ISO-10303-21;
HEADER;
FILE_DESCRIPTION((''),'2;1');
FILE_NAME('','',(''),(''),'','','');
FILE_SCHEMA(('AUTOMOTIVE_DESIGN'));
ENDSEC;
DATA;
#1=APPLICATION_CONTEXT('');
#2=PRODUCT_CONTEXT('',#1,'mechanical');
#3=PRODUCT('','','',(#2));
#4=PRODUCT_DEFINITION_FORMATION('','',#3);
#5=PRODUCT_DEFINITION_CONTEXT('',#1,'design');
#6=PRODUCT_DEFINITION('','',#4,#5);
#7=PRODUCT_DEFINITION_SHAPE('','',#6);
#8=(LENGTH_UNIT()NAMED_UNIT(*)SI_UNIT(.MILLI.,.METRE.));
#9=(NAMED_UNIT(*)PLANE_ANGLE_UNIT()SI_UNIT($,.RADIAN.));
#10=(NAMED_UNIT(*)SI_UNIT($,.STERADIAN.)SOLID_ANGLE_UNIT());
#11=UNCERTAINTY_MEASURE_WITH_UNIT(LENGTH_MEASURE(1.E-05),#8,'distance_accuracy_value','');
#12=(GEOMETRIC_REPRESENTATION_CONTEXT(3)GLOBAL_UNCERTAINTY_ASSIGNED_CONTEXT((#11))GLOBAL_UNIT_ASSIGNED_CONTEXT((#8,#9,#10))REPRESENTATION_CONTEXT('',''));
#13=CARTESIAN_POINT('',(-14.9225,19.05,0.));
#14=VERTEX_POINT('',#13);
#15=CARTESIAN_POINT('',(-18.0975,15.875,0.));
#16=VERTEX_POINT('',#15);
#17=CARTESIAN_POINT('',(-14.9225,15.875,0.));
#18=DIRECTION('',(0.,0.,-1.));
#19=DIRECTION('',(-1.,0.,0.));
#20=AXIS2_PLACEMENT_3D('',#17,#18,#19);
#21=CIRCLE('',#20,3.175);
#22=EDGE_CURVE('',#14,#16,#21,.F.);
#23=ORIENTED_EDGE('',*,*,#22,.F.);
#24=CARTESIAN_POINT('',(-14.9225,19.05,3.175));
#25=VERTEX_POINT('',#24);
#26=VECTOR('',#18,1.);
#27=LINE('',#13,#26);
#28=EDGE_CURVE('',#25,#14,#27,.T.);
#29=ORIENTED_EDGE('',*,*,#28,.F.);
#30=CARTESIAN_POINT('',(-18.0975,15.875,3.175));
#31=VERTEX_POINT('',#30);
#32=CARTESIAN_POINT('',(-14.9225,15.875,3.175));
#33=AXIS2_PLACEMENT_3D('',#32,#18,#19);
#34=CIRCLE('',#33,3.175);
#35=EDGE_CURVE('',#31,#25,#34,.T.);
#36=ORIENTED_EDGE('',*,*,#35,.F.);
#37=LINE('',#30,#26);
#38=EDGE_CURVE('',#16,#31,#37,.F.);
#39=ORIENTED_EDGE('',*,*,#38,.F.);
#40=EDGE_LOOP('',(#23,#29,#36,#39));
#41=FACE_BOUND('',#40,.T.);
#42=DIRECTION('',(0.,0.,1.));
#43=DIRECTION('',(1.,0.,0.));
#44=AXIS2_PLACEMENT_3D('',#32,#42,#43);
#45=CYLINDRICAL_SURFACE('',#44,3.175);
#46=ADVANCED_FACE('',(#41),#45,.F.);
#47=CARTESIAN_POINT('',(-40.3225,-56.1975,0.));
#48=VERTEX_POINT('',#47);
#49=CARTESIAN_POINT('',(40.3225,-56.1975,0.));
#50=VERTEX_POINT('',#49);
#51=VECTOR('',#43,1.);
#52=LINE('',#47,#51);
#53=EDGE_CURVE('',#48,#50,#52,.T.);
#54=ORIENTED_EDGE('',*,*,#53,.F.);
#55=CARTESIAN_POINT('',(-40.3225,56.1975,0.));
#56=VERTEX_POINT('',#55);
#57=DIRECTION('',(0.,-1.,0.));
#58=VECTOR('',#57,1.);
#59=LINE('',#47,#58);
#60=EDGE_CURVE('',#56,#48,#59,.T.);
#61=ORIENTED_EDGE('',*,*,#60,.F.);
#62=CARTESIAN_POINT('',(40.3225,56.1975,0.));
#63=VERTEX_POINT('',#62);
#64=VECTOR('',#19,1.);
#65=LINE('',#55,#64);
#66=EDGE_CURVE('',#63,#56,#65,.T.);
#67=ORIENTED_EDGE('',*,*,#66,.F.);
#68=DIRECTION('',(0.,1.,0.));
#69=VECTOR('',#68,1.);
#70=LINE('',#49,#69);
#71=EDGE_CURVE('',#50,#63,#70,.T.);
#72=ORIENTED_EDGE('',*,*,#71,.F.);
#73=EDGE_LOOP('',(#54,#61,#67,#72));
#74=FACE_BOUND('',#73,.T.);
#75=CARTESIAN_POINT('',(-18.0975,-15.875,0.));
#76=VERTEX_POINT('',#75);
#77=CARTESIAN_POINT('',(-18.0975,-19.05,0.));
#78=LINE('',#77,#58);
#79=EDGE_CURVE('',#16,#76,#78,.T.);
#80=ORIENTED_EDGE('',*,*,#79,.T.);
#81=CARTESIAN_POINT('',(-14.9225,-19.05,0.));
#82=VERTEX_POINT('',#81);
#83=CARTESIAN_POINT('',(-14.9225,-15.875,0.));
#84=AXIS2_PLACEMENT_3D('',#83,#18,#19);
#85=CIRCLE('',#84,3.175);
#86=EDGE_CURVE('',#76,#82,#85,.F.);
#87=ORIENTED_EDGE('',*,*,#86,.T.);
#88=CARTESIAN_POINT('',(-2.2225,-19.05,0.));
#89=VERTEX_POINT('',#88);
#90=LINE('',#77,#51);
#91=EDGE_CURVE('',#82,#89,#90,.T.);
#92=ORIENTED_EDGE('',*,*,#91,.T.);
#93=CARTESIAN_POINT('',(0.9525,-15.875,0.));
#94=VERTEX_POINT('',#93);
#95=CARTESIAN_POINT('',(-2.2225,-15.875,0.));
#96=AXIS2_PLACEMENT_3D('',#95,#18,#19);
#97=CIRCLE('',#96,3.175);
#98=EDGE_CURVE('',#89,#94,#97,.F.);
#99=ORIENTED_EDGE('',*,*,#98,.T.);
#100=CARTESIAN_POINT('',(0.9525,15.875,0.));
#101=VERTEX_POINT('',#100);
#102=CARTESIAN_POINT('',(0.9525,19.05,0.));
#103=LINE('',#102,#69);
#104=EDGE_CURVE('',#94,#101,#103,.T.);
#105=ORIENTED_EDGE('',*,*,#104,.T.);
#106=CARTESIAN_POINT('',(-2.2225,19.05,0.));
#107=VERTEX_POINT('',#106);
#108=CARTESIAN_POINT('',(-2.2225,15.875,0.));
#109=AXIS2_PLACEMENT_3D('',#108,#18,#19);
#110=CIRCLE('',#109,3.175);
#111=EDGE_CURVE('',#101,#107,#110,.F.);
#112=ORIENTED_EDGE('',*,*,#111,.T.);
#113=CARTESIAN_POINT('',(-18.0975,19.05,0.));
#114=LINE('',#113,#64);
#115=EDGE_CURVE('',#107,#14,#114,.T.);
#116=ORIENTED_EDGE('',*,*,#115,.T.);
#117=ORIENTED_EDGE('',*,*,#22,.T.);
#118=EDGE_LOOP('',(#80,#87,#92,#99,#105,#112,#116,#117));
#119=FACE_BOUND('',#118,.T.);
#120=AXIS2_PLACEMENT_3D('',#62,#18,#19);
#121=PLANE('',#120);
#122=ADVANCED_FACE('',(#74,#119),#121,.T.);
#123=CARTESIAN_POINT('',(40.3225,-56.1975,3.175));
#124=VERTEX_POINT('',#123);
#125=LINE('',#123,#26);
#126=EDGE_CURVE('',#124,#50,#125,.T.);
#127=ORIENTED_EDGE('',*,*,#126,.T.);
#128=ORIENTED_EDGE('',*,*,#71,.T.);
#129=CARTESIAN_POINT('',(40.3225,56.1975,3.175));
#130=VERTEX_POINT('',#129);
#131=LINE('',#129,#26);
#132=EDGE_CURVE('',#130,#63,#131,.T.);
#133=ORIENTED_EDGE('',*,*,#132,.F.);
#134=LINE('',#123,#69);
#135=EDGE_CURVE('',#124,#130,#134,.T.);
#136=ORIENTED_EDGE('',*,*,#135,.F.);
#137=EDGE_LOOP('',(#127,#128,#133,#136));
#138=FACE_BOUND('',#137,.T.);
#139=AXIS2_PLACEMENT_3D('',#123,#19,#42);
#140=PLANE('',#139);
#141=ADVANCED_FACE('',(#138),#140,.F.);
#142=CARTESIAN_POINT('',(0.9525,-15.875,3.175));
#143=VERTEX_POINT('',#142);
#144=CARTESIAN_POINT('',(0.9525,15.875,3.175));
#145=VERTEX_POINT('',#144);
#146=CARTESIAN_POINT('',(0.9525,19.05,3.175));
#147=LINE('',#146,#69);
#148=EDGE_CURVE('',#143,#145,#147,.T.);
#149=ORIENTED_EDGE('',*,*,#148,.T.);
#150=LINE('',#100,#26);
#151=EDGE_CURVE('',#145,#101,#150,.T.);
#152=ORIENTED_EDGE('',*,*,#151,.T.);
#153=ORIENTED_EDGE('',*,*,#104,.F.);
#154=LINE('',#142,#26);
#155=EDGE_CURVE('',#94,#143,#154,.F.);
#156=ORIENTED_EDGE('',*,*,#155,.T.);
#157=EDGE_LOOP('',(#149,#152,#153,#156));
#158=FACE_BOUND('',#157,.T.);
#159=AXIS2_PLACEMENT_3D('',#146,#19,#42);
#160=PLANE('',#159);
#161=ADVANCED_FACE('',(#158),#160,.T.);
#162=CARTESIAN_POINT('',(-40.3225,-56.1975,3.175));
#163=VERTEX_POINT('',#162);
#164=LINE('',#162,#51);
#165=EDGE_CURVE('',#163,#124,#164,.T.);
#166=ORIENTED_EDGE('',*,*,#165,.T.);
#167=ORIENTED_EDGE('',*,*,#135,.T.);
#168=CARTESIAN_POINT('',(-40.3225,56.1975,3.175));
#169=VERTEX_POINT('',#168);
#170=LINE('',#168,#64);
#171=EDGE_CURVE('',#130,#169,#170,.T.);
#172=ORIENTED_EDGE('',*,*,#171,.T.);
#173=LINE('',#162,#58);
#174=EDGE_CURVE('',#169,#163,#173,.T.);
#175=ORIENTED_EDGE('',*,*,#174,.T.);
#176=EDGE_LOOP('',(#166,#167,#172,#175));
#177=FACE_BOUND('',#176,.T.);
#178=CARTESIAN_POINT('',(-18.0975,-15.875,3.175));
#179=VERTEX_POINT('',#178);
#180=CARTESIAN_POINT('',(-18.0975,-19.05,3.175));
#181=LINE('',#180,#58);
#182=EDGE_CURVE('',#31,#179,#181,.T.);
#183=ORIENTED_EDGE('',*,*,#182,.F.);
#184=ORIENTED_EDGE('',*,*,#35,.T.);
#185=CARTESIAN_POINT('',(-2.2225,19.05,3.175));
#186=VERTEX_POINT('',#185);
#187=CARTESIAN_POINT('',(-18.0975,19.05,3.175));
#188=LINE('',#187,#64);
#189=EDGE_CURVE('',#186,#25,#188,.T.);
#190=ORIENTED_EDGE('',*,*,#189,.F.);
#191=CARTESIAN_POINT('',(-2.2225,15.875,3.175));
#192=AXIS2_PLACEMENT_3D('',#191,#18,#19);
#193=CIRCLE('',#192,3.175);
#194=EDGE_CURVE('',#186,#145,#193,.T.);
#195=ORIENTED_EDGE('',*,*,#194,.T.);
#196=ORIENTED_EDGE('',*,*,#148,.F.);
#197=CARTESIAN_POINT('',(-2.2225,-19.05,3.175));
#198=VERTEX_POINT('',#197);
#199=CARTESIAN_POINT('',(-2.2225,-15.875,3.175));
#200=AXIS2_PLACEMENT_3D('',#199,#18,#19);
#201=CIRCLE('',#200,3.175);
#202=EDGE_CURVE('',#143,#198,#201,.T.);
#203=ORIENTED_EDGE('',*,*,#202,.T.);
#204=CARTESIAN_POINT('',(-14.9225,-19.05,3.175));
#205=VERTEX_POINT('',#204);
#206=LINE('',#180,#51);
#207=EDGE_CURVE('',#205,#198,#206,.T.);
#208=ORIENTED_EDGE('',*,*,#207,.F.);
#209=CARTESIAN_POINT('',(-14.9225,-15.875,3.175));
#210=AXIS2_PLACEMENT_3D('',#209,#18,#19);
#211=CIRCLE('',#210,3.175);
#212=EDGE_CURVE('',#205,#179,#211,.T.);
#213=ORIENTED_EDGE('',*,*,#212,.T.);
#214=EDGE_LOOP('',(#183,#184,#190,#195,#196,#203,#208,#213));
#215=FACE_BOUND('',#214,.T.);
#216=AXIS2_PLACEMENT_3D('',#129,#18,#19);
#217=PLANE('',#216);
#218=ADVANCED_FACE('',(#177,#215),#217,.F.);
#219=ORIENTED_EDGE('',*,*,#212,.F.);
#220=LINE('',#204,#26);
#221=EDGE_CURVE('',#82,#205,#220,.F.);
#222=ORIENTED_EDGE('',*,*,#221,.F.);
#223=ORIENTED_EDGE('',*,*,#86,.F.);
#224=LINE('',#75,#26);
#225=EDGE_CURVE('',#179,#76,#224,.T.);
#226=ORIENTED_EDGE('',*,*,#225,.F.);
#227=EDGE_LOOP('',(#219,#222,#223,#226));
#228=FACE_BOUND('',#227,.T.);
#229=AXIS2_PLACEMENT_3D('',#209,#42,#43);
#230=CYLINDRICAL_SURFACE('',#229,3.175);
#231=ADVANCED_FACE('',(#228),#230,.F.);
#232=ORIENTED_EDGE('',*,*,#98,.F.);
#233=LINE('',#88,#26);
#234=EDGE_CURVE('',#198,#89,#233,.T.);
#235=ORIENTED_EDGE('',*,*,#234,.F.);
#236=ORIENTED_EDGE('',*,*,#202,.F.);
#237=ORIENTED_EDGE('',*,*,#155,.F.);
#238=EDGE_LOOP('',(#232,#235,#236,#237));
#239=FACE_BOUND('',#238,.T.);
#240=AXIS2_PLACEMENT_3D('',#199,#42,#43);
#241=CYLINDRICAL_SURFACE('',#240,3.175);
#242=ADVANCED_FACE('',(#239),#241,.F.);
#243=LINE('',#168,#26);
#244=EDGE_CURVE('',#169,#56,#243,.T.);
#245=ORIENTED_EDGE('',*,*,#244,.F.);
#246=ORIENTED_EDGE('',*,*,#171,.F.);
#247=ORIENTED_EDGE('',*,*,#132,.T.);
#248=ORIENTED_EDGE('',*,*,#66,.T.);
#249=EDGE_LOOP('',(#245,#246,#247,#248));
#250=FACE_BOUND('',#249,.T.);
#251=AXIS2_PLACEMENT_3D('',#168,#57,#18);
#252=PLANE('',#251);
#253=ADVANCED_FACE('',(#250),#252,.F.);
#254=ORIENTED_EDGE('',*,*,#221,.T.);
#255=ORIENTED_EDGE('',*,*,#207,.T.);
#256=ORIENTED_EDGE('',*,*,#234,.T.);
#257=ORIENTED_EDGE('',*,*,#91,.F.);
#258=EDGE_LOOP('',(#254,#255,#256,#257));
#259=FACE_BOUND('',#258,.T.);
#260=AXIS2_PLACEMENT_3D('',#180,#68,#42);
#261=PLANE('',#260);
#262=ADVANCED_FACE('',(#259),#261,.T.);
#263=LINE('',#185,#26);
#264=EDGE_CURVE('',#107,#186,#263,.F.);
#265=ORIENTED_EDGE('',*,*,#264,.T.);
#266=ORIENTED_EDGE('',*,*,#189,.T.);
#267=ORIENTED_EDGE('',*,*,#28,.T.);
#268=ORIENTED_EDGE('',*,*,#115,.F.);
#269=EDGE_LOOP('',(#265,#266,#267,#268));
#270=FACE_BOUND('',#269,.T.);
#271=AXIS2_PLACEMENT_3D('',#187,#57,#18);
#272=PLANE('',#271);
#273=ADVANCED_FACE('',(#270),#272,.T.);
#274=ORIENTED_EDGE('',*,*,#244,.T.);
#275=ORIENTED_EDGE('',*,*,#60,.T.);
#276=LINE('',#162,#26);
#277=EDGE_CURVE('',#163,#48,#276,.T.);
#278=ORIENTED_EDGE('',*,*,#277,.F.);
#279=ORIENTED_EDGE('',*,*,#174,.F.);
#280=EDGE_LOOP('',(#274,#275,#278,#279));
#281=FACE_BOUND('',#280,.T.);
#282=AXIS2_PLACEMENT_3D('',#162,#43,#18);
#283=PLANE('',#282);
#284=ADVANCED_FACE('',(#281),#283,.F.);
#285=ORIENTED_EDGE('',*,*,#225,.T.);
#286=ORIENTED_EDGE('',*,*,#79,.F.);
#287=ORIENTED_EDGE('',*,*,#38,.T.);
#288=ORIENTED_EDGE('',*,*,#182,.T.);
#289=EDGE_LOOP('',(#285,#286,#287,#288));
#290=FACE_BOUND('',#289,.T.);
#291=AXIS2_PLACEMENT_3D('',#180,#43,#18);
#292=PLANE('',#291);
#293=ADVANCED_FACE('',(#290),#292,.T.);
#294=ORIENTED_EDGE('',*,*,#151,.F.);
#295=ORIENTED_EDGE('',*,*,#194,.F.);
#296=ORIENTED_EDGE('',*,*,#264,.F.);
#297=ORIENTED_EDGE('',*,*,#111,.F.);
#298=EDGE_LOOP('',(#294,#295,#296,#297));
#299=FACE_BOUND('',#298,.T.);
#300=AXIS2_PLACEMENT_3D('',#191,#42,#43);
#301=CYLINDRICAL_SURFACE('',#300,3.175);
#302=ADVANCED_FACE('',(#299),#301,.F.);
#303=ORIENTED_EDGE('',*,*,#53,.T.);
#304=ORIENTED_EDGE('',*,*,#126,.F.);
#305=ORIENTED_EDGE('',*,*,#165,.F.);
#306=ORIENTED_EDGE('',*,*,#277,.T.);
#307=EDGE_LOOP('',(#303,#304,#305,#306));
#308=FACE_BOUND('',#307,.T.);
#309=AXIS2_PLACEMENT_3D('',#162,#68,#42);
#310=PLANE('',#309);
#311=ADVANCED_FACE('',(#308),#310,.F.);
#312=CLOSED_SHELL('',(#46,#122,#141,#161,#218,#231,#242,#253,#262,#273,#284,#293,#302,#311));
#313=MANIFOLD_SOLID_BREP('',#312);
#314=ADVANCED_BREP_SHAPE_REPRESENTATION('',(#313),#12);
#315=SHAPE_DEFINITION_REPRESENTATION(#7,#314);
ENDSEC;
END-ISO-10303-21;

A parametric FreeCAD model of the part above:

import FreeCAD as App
import Part
import Sketcher
Q = App.Units.Quantity


def edges_at(feature, points):
    """Names of the edges that pass closest to the given points."""
    edges = feature.Shape.Edges
    near = lambda p: min(range(len(edges)), key=lambda i: edges[i].distToShape(Part.Vertex(*p))[0])
    return sorted({f"Edge{near(p) + 1}" for p in points})

doc = App.newDocument("Part")
body = doc.addObject("PartDesign::Body", "Body")

# Sketch on XY plane
sketch1 = body.newObject("Sketcher::SketchObject", "Sketch")
sketch1.AttachmentSupport = (doc.getObject("XY_Plane"), [""])
sketch1.MapMode = "FlatFace"
sketch1.addGeometry([
    Part.LineSegment(App.Vector(-40, 56, 0), App.Vector(-40, -56, 0)),  # 0
    Part.LineSegment(App.Vector(-40, -56, 0), App.Vector(40, -56, 0)),  # 1
    Part.LineSegment(App.Vector(40, -56, 0), App.Vector(40, 56, 0)),  # 2
    Part.LineSegment(App.Vector(40, 56, 0), App.Vector(-40, 56, 0)),  # 3
    Part.LineSegment(App.Vector(1, -19, 0), App.Vector(-18, -19, 0)),  # 4
    Part.LineSegment(App.Vector(-18, -19, 0), App.Vector(-18, 19, 0)),  # 5
    Part.LineSegment(App.Vector(-18, 19, 0), App.Vector(1, 19, 0)),  # 6
    Part.LineSegment(App.Vector(1, 19, 0), App.Vector(1, -19, 0)),  # 7
], False)
sketch1.addConstraint([
    Sketcher.Constraint("Coincident", 0, 2, 1, 1),
    Sketcher.Constraint("Coincident", 1, 2, 2, 1),
    Sketcher.Constraint("Coincident", 2, 2, 3, 1),
    Sketcher.Constraint("Coincident", 3, 2, 0, 1),
    Sketcher.Constraint("Coincident", 4, 2, 5, 1),
    Sketcher.Constraint("Coincident", 5, 2, 6, 1),
    Sketcher.Constraint("Coincident", 6, 2, 7, 1),
    Sketcher.Constraint("Coincident", 7, 2, 4, 1),
    Sketcher.Constraint("Vertical", 0),
    Sketcher.Constraint("Horizontal", 1),
    Sketcher.Constraint("Vertical", 2),
    Sketcher.Constraint("Horizontal", 3),
    Sketcher.Constraint("Horizontal", 4),
    Sketcher.Constraint("Vertical", 5),
    Sketcher.Constraint("Horizontal", 6),
    Sketcher.Constraint("Vertical", 7),
    Sketcher.Constraint("Symmetric", 0, 2, 2, 2, -1, 1),
    Sketcher.Constraint("DistanceY", 5, 1, 5, 2, Q("1.5 in")),
    Sketcher.Constraint("DistanceX", 4, 2, 4, 1, Q("0.75 in")),
    Sketcher.Constraint("DistanceX", 4, 2, 1, 2, Q("2.3 in")),
    Sketcher.Constraint("DistanceX", 1, 1, 1, 2, Q("3.175 in")),
    Sketcher.Constraint("DistanceY", 0, 2, 0, 1, Q("4.425 in")),
    Sketcher.Constraint("DistanceY", 4, 2, -1, 1, Q("0.75 in")),
])
pad1 = body.newObject("PartDesign::Pad", "Pad")
pad1.Profile = sketch1
pad1.Length = Q("0.125 in")
doc.recompute()

fillet = body.newObject("PartDesign::Fillet", "Fillet")
fillet.Base = (pad1, edges_at(pad1, [
    (-18.098, -19.05, 1.587),
    (0.953, -19.05, 1.587),
    (0.953, 19.05, 1.587),
    (-18.098, 19.05, 1.587),
]))
fillet.Radius = Q("0.125 in")

doc.recompute()
